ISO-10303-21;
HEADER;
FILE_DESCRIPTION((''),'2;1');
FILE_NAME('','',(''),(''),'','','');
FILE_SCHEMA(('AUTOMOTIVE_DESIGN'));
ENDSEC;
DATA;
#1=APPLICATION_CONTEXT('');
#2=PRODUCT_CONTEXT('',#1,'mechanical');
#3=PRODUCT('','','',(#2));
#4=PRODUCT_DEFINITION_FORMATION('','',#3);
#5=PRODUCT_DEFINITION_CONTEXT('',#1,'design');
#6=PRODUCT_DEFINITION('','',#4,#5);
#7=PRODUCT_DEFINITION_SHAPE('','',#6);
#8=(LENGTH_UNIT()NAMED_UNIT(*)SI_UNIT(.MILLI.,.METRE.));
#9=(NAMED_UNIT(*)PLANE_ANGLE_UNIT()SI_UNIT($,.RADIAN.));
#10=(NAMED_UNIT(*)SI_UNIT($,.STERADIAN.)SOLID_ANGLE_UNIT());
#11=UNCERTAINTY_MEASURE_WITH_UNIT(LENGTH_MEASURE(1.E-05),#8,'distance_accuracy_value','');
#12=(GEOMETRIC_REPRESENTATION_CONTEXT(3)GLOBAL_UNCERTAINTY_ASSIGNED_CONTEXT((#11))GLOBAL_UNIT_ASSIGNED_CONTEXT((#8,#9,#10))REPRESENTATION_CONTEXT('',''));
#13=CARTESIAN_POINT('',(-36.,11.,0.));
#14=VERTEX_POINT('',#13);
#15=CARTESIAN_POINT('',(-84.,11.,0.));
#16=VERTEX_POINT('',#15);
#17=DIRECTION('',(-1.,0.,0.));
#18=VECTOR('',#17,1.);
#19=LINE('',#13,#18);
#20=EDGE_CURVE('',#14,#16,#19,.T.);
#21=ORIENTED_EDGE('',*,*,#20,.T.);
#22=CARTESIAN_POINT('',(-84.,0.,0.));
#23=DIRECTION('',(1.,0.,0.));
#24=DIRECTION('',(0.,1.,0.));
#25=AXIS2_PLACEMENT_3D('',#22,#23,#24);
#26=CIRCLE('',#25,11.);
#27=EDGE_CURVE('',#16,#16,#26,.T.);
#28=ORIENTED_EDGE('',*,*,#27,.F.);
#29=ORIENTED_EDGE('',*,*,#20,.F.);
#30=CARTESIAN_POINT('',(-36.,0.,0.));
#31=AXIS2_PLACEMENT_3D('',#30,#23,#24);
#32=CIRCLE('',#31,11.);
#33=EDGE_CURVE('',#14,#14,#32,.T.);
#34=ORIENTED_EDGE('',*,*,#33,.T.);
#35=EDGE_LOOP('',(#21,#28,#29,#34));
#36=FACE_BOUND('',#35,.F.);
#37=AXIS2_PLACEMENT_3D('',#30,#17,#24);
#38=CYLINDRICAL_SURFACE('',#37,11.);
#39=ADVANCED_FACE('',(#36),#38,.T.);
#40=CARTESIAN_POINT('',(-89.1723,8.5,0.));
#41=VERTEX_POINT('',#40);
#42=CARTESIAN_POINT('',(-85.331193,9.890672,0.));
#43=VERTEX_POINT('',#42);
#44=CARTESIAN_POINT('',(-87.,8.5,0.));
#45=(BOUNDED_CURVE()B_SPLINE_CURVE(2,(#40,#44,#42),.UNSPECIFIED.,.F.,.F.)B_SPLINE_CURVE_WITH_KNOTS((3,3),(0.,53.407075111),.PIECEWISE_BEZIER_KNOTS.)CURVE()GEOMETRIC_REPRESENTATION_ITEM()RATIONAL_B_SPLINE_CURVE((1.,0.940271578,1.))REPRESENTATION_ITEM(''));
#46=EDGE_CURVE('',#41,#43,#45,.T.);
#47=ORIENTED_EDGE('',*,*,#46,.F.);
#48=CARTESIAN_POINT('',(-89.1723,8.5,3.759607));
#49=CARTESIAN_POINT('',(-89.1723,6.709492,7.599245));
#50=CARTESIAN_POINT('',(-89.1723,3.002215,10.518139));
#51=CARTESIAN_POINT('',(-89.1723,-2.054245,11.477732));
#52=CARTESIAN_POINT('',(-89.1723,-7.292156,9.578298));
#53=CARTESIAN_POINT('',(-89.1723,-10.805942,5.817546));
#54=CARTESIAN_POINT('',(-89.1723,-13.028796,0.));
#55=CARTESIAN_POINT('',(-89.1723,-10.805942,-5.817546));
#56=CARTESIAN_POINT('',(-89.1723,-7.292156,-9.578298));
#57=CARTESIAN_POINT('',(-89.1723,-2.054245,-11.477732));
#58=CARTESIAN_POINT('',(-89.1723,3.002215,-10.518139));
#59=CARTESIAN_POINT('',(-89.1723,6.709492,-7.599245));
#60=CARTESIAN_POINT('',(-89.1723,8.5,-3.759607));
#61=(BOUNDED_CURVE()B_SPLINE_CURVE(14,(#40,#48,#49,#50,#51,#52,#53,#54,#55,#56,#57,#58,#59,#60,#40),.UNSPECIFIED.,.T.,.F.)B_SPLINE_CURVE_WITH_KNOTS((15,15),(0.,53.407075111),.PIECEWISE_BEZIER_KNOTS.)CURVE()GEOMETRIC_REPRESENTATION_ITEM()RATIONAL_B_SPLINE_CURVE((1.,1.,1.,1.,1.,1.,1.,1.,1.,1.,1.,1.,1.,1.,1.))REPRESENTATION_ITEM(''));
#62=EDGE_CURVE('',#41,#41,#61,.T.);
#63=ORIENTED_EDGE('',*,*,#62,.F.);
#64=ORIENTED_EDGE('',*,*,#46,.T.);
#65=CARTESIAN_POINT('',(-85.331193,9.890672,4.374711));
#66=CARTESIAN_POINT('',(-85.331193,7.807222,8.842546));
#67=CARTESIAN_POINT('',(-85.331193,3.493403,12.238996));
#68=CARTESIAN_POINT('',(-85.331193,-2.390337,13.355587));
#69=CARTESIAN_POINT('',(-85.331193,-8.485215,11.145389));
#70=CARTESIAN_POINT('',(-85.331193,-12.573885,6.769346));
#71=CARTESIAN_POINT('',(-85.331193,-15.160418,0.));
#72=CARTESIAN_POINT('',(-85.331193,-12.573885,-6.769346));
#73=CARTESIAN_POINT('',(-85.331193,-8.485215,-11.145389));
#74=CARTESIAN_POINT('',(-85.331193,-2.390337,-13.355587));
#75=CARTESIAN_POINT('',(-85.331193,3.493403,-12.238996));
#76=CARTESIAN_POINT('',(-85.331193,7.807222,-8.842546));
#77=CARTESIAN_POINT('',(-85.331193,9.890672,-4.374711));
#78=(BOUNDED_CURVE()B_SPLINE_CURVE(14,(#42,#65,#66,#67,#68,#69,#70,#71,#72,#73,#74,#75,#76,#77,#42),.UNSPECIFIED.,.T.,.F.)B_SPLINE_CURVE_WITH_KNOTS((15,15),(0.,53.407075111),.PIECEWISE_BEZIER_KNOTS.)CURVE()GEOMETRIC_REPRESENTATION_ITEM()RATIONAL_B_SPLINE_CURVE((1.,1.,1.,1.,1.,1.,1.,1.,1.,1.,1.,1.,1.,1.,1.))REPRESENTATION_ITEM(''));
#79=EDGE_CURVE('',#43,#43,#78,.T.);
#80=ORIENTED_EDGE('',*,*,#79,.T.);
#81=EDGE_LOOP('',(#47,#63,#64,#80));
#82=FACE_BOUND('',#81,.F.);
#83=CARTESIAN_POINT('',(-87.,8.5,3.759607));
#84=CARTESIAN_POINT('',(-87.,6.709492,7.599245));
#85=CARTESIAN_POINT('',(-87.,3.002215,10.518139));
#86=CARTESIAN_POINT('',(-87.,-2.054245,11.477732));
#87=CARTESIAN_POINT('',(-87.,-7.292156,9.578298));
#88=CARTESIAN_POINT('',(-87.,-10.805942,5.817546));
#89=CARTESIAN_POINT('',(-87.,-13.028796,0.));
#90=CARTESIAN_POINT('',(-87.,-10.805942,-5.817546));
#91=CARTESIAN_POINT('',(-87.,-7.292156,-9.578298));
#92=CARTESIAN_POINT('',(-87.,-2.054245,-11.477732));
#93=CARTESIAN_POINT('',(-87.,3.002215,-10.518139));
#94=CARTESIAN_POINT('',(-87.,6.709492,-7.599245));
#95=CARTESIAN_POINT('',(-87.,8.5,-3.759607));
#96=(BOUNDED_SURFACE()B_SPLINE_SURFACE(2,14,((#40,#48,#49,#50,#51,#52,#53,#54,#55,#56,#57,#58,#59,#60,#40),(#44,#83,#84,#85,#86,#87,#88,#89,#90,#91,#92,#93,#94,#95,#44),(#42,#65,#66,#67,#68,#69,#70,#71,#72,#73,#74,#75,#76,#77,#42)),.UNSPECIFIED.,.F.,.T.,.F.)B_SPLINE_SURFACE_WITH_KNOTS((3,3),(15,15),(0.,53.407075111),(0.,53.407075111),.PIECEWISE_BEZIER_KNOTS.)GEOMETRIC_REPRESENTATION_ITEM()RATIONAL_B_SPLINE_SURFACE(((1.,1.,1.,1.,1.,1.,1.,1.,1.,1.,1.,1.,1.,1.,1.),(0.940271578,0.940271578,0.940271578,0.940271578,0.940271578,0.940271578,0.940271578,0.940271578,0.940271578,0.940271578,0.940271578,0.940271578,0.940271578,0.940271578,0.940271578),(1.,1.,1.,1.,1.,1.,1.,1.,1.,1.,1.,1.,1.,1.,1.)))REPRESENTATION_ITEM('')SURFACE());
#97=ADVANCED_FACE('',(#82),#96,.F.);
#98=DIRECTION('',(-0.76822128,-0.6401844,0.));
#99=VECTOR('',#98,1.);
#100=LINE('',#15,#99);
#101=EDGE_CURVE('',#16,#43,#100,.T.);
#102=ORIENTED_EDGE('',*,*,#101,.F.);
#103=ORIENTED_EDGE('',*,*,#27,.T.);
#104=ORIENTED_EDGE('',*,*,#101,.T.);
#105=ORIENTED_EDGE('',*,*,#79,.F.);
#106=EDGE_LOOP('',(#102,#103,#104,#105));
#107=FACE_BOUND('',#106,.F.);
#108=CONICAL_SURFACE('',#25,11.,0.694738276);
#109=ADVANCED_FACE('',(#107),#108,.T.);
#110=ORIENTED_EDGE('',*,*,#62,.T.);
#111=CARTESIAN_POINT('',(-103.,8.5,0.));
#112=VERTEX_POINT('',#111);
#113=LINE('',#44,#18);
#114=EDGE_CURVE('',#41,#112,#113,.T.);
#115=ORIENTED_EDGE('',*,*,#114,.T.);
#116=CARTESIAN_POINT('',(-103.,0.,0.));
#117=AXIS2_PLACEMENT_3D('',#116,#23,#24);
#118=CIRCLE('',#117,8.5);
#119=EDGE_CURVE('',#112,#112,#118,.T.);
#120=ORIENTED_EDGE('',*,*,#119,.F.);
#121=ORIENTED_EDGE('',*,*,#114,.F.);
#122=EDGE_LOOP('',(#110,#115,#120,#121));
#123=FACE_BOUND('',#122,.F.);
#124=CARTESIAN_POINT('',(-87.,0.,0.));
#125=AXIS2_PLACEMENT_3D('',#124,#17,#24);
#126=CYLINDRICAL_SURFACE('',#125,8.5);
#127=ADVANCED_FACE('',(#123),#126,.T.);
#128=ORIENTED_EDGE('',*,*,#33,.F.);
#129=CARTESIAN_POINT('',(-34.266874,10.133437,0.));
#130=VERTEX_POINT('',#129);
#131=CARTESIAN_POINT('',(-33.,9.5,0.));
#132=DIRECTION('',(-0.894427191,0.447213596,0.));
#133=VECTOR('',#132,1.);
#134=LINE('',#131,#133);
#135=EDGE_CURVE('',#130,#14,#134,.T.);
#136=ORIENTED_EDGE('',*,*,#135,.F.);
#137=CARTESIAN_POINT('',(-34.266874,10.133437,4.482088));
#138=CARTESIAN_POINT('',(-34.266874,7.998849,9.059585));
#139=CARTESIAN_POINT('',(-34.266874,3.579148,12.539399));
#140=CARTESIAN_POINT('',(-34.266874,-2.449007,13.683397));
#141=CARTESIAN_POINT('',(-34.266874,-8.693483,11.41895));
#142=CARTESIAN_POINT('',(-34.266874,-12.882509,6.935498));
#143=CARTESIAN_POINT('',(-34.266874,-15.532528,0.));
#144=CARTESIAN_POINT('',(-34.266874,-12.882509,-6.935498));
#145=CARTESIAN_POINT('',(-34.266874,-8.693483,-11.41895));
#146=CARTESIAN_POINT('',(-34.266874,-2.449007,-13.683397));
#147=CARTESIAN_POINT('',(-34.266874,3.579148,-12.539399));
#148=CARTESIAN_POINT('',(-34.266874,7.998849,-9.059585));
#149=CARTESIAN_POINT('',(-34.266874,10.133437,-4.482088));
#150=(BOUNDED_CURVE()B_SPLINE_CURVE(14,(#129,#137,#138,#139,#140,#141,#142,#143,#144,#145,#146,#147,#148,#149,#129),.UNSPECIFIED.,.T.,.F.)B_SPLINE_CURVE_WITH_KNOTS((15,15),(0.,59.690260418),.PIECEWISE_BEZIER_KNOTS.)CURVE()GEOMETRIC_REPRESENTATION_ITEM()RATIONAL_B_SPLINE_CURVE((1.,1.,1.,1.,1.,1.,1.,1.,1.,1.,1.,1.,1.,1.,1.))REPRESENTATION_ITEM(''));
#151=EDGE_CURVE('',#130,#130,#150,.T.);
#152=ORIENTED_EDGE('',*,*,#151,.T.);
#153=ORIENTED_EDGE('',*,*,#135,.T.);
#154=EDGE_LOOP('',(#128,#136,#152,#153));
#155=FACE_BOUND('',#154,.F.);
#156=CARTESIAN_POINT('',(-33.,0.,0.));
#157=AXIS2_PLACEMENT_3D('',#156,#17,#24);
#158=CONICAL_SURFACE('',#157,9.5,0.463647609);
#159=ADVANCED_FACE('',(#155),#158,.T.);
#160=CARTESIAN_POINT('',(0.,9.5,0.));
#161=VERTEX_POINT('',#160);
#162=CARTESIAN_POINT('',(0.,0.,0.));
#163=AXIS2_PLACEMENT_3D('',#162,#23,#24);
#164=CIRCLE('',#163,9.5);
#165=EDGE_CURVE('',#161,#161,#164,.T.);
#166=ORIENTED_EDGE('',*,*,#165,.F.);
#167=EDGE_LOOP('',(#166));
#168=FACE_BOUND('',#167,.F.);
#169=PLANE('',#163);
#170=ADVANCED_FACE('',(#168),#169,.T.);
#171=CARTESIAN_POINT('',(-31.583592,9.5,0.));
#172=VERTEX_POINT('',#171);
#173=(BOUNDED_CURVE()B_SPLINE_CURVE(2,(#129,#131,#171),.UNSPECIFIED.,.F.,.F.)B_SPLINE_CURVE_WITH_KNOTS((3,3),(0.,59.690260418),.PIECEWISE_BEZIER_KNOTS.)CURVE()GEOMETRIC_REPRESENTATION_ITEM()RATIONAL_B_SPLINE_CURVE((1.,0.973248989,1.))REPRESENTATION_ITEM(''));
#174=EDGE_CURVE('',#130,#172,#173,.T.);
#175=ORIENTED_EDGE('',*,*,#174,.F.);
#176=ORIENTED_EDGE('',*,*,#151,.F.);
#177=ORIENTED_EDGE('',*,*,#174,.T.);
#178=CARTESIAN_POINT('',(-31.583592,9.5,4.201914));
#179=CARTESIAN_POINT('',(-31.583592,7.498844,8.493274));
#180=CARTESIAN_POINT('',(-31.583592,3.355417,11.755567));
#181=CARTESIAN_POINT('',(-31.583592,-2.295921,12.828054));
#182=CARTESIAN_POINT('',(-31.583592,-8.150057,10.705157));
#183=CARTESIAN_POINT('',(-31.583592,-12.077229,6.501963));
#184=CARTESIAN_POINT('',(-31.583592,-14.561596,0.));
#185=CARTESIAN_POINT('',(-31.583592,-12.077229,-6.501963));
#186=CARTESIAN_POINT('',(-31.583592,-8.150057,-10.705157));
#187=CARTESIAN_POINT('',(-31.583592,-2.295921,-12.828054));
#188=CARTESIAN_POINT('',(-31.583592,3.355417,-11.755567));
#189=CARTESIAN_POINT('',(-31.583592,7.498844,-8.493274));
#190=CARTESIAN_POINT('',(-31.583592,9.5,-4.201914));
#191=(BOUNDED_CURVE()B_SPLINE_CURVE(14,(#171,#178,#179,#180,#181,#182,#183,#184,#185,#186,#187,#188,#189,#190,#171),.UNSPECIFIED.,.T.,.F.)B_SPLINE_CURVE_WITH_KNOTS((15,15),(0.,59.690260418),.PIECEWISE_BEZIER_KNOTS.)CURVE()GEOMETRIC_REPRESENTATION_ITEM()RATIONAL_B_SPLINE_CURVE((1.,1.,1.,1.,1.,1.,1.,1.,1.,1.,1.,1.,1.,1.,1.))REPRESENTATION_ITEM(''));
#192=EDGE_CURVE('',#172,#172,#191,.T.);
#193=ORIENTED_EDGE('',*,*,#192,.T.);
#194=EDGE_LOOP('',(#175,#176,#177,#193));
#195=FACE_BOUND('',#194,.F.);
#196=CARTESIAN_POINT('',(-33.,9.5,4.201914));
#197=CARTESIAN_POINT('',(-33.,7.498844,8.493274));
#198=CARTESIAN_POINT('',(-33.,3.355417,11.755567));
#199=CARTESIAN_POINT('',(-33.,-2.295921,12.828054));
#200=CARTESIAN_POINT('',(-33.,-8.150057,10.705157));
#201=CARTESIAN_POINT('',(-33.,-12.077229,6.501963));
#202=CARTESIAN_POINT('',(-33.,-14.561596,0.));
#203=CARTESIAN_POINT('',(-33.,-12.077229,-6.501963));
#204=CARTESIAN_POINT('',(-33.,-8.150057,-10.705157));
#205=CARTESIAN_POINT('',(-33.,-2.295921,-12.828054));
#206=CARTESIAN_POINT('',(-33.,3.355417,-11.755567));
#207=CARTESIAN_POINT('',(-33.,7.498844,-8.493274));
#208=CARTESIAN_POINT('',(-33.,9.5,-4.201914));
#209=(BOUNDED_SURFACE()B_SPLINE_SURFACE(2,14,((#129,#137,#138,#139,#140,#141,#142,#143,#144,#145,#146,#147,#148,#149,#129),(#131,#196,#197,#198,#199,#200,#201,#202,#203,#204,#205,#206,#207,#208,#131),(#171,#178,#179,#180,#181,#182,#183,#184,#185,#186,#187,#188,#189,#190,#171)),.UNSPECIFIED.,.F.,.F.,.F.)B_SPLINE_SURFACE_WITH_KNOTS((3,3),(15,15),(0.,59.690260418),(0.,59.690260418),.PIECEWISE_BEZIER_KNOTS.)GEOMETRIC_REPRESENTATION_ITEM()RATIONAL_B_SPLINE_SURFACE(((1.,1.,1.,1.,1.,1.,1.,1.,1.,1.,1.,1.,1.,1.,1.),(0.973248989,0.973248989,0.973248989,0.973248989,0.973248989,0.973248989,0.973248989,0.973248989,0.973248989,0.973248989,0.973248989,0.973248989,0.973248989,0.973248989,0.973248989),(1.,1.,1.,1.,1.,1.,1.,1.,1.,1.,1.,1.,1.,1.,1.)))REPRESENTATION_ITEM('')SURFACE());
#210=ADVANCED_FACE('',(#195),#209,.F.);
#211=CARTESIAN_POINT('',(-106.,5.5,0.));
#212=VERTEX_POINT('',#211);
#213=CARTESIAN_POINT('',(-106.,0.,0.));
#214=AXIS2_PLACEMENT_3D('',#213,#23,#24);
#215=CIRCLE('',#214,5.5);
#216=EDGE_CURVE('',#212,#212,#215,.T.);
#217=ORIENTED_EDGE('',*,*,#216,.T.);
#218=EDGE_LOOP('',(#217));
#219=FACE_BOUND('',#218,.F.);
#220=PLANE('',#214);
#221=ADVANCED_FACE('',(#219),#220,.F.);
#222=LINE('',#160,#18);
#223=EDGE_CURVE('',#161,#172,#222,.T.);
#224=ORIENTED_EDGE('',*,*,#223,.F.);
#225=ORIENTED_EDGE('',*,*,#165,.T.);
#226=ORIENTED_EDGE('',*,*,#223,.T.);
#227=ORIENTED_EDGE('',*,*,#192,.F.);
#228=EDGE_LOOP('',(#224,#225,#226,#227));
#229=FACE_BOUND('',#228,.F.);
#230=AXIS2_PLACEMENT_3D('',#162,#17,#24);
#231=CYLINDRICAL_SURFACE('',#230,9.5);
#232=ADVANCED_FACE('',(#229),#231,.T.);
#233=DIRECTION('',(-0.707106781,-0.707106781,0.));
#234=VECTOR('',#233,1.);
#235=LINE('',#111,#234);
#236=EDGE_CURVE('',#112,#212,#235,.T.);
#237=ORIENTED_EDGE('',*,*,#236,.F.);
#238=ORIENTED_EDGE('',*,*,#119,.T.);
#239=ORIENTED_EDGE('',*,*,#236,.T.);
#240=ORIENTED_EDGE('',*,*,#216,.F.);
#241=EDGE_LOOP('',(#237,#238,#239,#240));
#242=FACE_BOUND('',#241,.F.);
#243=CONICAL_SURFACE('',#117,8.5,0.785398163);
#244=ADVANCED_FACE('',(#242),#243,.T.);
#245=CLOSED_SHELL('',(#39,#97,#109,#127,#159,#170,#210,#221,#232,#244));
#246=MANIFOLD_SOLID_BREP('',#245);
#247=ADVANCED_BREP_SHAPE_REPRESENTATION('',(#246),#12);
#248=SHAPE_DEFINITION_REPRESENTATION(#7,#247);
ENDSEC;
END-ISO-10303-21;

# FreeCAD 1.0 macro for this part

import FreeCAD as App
import Part
import Sketcher
from FreeCAD import Vector
Q = App.Units.Quantity


def edges_at(feature, points):
    """Names of the edges that pass closest to the given points."""
    edges = feature.Shape.Edges
    near = lambda p: min(range(len(edges)), key=lambda i: edges[i].distToShape(Part.Vertex(*p))[0])
    return sorted({f"Edge{near(p) + 1}" for p in points})

doc = App.newDocument("Part")
body = doc.addObject("PartDesign::Body", "Body")

sketch1 = body.newObject("Sketcher::SketchObject", "Sketch")
sketch1.AttachmentSupport = (doc.getObject("XY_Plane"), [""])
sketch1.MapMode = "FlatFace"
sketch1.addGeometry([
    Part.LineSegment(Vector(-106, 0, 0), Vector(0, 0, 0)),
    Part.LineSegment(Vector(0, 0, 0), Vector(0, 9.5, 0)),
    Part.LineSegment(Vector(0, 9.5, 0), Vector(-33, 9.5, 0)),
    Part.LineSegment(Vector(-33, 9.5, 0), Vector(-36, 11, 0)),
    Part.LineSegment(Vector(-36, 11, 0), Vector(-84, 11, 0)),
    Part.LineSegment(Vector(-84, 11, 0), Vector(-87, 8.5, 0)),
    Part.LineSegment(Vector(-87, 8.5, 0), Vector(-106, 8.5, 0)),
    Part.LineSegment(Vector(-106, 8.5, 0), Vector(-106, 0, 0)),
], False)
sketch1.addConstraint([
    Sketcher.Constraint("Coincident", 0, 2, 1, 1),
    Sketcher.Constraint("Coincident", 1, 2, 2, 1),
    Sketcher.Constraint("Coincident", 2, 2, 3, 1),
    Sketcher.Constraint("Coincident", 3, 2, 4, 1),
    Sketcher.Constraint("Coincident", 4, 2, 5, 1),
    Sketcher.Constraint("Coincident", 5, 2, 6, 1),
    Sketcher.Constraint("Coincident", 6, 2, 7, 1),
    Sketcher.Constraint("Coincident", 7, 2, 0, 1),
    Sketcher.Constraint("Horizontal", 0),
    Sketcher.Constraint("Vertical", 1),
    Sketcher.Constraint("Horizontal", 2),
    Sketcher.Constraint("Horizontal", 4),
    Sketcher.Constraint("Horizontal", 6),
    Sketcher.Constraint("Vertical", 7),
    Sketcher.Constraint("Coincident", 0, 2, -1, 1),
    Sketcher.Constraint("DistanceX", 0, 1, 0, 2, Q("106 mm")),
    Sketcher.Constraint("DistanceX", 2, 2, 2, 1, Q("33 mm")),
    Sketcher.Constraint("DistanceX", 4, 2, 4, 1, Q("48 mm")),
    Sketcher.Constraint("DistanceX", 6, 2, 6, 1, Q("19 mm")),
    Sketcher.Constraint("DistanceY", 1, 1, 1, 2, Q("9.5 mm")),
    Sketcher.Constraint("DistanceY", 7, 2, 7, 1, Q("8.5 mm")),
    Sketcher.Constraint("DistanceX", 3, 2, -1, 1, Q("36 mm")),
    Sketcher.Constraint("DistanceY", -1, 1, 3, 2, Q("11 mm")),
])
revolution = body.newObject("PartDesign::Revolution", "Revolution")
revolution.Profile = sketch1
revolution.ReferenceAxis = (sketch1, ["H_Axis"])
revolution.Angle = 360
doc.recompute()

chamfer = body.newObject("PartDesign::Chamfer", "Chamfer")
chamfer.Base = (revolution, edges_at(revolution, [(-106, -8.5, 0)]))
chamfer.Size = 3
doc.recompute()

fillet = body.newObject("PartDesign::Fillet", "Fillet")
fillet.Base = (chamfer, edges_at(chamfer, [(-87, -8.5, 0), (-33, -9.5, 0)]))
fillet.Radius = 6

doc.recompute()
